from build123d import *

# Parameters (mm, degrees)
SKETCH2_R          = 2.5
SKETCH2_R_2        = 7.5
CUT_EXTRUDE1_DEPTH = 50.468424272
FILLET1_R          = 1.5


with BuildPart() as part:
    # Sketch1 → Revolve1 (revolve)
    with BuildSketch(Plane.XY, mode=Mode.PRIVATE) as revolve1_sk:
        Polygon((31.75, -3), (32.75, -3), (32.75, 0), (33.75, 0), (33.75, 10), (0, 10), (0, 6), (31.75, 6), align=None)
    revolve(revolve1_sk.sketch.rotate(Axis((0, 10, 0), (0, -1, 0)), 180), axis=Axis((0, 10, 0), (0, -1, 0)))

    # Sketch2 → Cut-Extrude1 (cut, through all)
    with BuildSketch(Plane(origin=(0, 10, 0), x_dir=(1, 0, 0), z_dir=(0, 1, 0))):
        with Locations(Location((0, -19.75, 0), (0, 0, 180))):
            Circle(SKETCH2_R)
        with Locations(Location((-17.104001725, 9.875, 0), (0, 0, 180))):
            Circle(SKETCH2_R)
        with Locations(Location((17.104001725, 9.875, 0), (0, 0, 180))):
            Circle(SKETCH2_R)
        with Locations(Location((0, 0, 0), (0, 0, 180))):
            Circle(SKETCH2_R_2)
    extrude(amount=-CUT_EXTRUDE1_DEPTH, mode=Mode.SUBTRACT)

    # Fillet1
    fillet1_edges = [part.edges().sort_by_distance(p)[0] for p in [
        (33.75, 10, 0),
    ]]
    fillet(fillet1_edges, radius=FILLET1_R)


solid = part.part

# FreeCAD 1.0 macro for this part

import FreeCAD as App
import Part
import Sketcher
Q = App.Units.Quantity


def edges_at(feature, points):
    """Names of the edges that pass closest to the given points."""
    edges = feature.Shape.Edges
    near = lambda p: min(range(len(edges)), key=lambda i: edges[i].distToShape(Part.Vertex(*p))[0])
    return sorted({f"Edge{near(p) + 1}" for p in points})

doc = App.newDocument("Part")
body = doc.addObject("PartDesign::Body", "Body")

# Sketch on XY plane
sketch1 = doc.addObject("Sketcher::SketchObject", "Sketch")
body.addObject(sketch1)
sketch1.AttachmentSupport = (doc.XY_Plane, [""])
sketch1.MapMode = "FlatFace"
sketch1.addGeometry([
    Part.LineSegment(App.Vector(31.75, -3, 0), App.Vector(32.75, -3, 0)),  # 0
    Part.LineSegment(App.Vector(32.75, -3, 0), App.Vector(32.75, 0, 0)),  # 1
    Part.LineSegment(App.Vector(32.75, 0, 0), App.Vector(33.75, 0, 0)),  # 2
    Part.LineSegment(App.Vector(33.75, 0, 0), App.Vector(33.75, 10, 0)),  # 3
    Part.LineSegment(App.Vector(33.75, 10, 0), App.Vector(0, 10, 0)),  # 4
    Part.LineSegment(App.Vector(0, 10, 0), App.Vector(0, 6, 0)),  # 5
    Part.LineSegment(App.Vector(0, 6, 0), App.Vector(31.75, 6, 0)),  # 6
    Part.LineSegment(App.Vector(31.75, 6, 0), App.Vector(31.75, -3, 0)),  # 7
], False)
sketch1.addConstraint([
    Sketcher.Constraint("Coincident", 0, 2, 1, 1),
    Sketcher.Constraint("Coincident", 1, 2, 2, 1),
    Sketcher.Constraint("Coincident", 2, 2, 3, 1),
    Sketcher.Constraint("Coincident", 3, 2, 4, 1),
    Sketcher.Constraint("Coincident", 4, 2, 5, 1),
    Sketcher.Constraint("Coincident", 5, 2, 6, 1),
    Sketcher.Constraint("Coincident", 6, 2, 7, 1),
    Sketcher.Constraint("Coincident", 7, 2, 0, 1),
    Sketcher.Constraint("Horizontal", 0),
    Sketcher.Constraint("Vertical", 1),
    Sketcher.Constraint("Horizontal", 2),
    Sketcher.Constraint("Vertical", 3),
    Sketcher.Constraint("Horizontal", 4),
    Sketcher.Constraint("Vertical", 5),
    Sketcher.Constraint("Horizontal", 6),
    Sketcher.Constraint("Vertical", 7),
    Sketcher.Constraint("PointOnObject", 1, 2, -1),
    Sketcher.Constraint("PointOnObject", 4, 2, -2),
    Sketcher.Constraint("Equal", 0, 2),
    Sketcher.Constraint("DistanceX", 0, 1, 0, 2, Q("1 mm")),
    Sketcher.Constraint("DistanceY", 1, 1, 1, 2, Q("3 mm")),
    Sketcher.Constraint("DistanceY", 3, 1, 3, 2, Q("10 mm")),
    Sketcher.Constraint("DistanceY", 5, 2, 5, 1, Q("4 mm")),
    Sketcher.Constraint("DistanceX", 4, 2, 4, 1, Q("33.75 mm")),
])
revolution = doc.addObject("PartDesign::Revolution", "Revolution")
body.addObject(revolution)
revolution.Profile = sketch1
revolution.ReferenceAxis = (sketch1, ["V_Axis"])
revolution.Angle = 360

# Sketch on XZ plane
sketch2 = doc.addObject("Sketcher::SketchObject", "Sketch001")
body.addObject(sketch2)
sketch2.AttachmentSupport = (doc.XZ_Plane, [""])
sketch2.MapMode = "FlatFace"
sketch2.AttachmentOffset = App.Placement(App.Vector(0, 0, -10), App.Rotation())
sketch2.addGeometry([
    Part.Circle(App.Vector(0, 19.75, 0), App.Vector(0, 0, 1), 2.5),
    Part.Circle(App.Vector(-17.104002, -9.875, 0), App.Vector(0, 0, 1), 2.5),
    Part.Circle(App.Vector(17.104002, -9.875, 0), App.Vector(0, 0, 1), 2.5),
    Part.Circle(App.Vector(0, 0, 0), App.Vector(0, 0, 1), 7.5),
], False)
sketch2.addConstraint([
    Sketcher.Constraint("Coincident", 3, 3, -1, 1),
    Sketcher.Constraint("Equal", 0, 1),
    Sketcher.Constraint("Equal", 1, 2),
    Sketcher.Constraint("Symmetric", 1, 3, 2, 3, -2),
    Sketcher.Constraint("PointOnObject", 0, 3, -2),
    Sketcher.Constraint("Diameter", 0, Q("5 mm")),
    Sketcher.Constraint("Diameter", 3, Q("15 mm")),
    Sketcher.Constraint("DistanceY", -1, 1, 0, 3, Q("19.75 mm")),
    Sketcher.Constraint("DistanceX", 1, 3, -1, 1, Q("17.104002 mm")),
    Sketcher.Constraint("DistanceY", 1, 3, -1, 1, Q("9.875 mm")),
])
pocket1 = doc.addObject("PartDesign::Pocket", "Pocket")
body.addObject(pocket1)
pocket1.Profile = sketch2
pocket1.Type = "ThroughAll"
pocket1.Reversed = True
doc.recompute()

fillet = doc.addObject("PartDesign::Fillet", "Fillet")
body.addObject(fillet)
fillet.Base = (pocket1, edges_at(pocket1, [(33.75, 10, 0)]))
fillet.Radius = 1.5

doc.recompute()
